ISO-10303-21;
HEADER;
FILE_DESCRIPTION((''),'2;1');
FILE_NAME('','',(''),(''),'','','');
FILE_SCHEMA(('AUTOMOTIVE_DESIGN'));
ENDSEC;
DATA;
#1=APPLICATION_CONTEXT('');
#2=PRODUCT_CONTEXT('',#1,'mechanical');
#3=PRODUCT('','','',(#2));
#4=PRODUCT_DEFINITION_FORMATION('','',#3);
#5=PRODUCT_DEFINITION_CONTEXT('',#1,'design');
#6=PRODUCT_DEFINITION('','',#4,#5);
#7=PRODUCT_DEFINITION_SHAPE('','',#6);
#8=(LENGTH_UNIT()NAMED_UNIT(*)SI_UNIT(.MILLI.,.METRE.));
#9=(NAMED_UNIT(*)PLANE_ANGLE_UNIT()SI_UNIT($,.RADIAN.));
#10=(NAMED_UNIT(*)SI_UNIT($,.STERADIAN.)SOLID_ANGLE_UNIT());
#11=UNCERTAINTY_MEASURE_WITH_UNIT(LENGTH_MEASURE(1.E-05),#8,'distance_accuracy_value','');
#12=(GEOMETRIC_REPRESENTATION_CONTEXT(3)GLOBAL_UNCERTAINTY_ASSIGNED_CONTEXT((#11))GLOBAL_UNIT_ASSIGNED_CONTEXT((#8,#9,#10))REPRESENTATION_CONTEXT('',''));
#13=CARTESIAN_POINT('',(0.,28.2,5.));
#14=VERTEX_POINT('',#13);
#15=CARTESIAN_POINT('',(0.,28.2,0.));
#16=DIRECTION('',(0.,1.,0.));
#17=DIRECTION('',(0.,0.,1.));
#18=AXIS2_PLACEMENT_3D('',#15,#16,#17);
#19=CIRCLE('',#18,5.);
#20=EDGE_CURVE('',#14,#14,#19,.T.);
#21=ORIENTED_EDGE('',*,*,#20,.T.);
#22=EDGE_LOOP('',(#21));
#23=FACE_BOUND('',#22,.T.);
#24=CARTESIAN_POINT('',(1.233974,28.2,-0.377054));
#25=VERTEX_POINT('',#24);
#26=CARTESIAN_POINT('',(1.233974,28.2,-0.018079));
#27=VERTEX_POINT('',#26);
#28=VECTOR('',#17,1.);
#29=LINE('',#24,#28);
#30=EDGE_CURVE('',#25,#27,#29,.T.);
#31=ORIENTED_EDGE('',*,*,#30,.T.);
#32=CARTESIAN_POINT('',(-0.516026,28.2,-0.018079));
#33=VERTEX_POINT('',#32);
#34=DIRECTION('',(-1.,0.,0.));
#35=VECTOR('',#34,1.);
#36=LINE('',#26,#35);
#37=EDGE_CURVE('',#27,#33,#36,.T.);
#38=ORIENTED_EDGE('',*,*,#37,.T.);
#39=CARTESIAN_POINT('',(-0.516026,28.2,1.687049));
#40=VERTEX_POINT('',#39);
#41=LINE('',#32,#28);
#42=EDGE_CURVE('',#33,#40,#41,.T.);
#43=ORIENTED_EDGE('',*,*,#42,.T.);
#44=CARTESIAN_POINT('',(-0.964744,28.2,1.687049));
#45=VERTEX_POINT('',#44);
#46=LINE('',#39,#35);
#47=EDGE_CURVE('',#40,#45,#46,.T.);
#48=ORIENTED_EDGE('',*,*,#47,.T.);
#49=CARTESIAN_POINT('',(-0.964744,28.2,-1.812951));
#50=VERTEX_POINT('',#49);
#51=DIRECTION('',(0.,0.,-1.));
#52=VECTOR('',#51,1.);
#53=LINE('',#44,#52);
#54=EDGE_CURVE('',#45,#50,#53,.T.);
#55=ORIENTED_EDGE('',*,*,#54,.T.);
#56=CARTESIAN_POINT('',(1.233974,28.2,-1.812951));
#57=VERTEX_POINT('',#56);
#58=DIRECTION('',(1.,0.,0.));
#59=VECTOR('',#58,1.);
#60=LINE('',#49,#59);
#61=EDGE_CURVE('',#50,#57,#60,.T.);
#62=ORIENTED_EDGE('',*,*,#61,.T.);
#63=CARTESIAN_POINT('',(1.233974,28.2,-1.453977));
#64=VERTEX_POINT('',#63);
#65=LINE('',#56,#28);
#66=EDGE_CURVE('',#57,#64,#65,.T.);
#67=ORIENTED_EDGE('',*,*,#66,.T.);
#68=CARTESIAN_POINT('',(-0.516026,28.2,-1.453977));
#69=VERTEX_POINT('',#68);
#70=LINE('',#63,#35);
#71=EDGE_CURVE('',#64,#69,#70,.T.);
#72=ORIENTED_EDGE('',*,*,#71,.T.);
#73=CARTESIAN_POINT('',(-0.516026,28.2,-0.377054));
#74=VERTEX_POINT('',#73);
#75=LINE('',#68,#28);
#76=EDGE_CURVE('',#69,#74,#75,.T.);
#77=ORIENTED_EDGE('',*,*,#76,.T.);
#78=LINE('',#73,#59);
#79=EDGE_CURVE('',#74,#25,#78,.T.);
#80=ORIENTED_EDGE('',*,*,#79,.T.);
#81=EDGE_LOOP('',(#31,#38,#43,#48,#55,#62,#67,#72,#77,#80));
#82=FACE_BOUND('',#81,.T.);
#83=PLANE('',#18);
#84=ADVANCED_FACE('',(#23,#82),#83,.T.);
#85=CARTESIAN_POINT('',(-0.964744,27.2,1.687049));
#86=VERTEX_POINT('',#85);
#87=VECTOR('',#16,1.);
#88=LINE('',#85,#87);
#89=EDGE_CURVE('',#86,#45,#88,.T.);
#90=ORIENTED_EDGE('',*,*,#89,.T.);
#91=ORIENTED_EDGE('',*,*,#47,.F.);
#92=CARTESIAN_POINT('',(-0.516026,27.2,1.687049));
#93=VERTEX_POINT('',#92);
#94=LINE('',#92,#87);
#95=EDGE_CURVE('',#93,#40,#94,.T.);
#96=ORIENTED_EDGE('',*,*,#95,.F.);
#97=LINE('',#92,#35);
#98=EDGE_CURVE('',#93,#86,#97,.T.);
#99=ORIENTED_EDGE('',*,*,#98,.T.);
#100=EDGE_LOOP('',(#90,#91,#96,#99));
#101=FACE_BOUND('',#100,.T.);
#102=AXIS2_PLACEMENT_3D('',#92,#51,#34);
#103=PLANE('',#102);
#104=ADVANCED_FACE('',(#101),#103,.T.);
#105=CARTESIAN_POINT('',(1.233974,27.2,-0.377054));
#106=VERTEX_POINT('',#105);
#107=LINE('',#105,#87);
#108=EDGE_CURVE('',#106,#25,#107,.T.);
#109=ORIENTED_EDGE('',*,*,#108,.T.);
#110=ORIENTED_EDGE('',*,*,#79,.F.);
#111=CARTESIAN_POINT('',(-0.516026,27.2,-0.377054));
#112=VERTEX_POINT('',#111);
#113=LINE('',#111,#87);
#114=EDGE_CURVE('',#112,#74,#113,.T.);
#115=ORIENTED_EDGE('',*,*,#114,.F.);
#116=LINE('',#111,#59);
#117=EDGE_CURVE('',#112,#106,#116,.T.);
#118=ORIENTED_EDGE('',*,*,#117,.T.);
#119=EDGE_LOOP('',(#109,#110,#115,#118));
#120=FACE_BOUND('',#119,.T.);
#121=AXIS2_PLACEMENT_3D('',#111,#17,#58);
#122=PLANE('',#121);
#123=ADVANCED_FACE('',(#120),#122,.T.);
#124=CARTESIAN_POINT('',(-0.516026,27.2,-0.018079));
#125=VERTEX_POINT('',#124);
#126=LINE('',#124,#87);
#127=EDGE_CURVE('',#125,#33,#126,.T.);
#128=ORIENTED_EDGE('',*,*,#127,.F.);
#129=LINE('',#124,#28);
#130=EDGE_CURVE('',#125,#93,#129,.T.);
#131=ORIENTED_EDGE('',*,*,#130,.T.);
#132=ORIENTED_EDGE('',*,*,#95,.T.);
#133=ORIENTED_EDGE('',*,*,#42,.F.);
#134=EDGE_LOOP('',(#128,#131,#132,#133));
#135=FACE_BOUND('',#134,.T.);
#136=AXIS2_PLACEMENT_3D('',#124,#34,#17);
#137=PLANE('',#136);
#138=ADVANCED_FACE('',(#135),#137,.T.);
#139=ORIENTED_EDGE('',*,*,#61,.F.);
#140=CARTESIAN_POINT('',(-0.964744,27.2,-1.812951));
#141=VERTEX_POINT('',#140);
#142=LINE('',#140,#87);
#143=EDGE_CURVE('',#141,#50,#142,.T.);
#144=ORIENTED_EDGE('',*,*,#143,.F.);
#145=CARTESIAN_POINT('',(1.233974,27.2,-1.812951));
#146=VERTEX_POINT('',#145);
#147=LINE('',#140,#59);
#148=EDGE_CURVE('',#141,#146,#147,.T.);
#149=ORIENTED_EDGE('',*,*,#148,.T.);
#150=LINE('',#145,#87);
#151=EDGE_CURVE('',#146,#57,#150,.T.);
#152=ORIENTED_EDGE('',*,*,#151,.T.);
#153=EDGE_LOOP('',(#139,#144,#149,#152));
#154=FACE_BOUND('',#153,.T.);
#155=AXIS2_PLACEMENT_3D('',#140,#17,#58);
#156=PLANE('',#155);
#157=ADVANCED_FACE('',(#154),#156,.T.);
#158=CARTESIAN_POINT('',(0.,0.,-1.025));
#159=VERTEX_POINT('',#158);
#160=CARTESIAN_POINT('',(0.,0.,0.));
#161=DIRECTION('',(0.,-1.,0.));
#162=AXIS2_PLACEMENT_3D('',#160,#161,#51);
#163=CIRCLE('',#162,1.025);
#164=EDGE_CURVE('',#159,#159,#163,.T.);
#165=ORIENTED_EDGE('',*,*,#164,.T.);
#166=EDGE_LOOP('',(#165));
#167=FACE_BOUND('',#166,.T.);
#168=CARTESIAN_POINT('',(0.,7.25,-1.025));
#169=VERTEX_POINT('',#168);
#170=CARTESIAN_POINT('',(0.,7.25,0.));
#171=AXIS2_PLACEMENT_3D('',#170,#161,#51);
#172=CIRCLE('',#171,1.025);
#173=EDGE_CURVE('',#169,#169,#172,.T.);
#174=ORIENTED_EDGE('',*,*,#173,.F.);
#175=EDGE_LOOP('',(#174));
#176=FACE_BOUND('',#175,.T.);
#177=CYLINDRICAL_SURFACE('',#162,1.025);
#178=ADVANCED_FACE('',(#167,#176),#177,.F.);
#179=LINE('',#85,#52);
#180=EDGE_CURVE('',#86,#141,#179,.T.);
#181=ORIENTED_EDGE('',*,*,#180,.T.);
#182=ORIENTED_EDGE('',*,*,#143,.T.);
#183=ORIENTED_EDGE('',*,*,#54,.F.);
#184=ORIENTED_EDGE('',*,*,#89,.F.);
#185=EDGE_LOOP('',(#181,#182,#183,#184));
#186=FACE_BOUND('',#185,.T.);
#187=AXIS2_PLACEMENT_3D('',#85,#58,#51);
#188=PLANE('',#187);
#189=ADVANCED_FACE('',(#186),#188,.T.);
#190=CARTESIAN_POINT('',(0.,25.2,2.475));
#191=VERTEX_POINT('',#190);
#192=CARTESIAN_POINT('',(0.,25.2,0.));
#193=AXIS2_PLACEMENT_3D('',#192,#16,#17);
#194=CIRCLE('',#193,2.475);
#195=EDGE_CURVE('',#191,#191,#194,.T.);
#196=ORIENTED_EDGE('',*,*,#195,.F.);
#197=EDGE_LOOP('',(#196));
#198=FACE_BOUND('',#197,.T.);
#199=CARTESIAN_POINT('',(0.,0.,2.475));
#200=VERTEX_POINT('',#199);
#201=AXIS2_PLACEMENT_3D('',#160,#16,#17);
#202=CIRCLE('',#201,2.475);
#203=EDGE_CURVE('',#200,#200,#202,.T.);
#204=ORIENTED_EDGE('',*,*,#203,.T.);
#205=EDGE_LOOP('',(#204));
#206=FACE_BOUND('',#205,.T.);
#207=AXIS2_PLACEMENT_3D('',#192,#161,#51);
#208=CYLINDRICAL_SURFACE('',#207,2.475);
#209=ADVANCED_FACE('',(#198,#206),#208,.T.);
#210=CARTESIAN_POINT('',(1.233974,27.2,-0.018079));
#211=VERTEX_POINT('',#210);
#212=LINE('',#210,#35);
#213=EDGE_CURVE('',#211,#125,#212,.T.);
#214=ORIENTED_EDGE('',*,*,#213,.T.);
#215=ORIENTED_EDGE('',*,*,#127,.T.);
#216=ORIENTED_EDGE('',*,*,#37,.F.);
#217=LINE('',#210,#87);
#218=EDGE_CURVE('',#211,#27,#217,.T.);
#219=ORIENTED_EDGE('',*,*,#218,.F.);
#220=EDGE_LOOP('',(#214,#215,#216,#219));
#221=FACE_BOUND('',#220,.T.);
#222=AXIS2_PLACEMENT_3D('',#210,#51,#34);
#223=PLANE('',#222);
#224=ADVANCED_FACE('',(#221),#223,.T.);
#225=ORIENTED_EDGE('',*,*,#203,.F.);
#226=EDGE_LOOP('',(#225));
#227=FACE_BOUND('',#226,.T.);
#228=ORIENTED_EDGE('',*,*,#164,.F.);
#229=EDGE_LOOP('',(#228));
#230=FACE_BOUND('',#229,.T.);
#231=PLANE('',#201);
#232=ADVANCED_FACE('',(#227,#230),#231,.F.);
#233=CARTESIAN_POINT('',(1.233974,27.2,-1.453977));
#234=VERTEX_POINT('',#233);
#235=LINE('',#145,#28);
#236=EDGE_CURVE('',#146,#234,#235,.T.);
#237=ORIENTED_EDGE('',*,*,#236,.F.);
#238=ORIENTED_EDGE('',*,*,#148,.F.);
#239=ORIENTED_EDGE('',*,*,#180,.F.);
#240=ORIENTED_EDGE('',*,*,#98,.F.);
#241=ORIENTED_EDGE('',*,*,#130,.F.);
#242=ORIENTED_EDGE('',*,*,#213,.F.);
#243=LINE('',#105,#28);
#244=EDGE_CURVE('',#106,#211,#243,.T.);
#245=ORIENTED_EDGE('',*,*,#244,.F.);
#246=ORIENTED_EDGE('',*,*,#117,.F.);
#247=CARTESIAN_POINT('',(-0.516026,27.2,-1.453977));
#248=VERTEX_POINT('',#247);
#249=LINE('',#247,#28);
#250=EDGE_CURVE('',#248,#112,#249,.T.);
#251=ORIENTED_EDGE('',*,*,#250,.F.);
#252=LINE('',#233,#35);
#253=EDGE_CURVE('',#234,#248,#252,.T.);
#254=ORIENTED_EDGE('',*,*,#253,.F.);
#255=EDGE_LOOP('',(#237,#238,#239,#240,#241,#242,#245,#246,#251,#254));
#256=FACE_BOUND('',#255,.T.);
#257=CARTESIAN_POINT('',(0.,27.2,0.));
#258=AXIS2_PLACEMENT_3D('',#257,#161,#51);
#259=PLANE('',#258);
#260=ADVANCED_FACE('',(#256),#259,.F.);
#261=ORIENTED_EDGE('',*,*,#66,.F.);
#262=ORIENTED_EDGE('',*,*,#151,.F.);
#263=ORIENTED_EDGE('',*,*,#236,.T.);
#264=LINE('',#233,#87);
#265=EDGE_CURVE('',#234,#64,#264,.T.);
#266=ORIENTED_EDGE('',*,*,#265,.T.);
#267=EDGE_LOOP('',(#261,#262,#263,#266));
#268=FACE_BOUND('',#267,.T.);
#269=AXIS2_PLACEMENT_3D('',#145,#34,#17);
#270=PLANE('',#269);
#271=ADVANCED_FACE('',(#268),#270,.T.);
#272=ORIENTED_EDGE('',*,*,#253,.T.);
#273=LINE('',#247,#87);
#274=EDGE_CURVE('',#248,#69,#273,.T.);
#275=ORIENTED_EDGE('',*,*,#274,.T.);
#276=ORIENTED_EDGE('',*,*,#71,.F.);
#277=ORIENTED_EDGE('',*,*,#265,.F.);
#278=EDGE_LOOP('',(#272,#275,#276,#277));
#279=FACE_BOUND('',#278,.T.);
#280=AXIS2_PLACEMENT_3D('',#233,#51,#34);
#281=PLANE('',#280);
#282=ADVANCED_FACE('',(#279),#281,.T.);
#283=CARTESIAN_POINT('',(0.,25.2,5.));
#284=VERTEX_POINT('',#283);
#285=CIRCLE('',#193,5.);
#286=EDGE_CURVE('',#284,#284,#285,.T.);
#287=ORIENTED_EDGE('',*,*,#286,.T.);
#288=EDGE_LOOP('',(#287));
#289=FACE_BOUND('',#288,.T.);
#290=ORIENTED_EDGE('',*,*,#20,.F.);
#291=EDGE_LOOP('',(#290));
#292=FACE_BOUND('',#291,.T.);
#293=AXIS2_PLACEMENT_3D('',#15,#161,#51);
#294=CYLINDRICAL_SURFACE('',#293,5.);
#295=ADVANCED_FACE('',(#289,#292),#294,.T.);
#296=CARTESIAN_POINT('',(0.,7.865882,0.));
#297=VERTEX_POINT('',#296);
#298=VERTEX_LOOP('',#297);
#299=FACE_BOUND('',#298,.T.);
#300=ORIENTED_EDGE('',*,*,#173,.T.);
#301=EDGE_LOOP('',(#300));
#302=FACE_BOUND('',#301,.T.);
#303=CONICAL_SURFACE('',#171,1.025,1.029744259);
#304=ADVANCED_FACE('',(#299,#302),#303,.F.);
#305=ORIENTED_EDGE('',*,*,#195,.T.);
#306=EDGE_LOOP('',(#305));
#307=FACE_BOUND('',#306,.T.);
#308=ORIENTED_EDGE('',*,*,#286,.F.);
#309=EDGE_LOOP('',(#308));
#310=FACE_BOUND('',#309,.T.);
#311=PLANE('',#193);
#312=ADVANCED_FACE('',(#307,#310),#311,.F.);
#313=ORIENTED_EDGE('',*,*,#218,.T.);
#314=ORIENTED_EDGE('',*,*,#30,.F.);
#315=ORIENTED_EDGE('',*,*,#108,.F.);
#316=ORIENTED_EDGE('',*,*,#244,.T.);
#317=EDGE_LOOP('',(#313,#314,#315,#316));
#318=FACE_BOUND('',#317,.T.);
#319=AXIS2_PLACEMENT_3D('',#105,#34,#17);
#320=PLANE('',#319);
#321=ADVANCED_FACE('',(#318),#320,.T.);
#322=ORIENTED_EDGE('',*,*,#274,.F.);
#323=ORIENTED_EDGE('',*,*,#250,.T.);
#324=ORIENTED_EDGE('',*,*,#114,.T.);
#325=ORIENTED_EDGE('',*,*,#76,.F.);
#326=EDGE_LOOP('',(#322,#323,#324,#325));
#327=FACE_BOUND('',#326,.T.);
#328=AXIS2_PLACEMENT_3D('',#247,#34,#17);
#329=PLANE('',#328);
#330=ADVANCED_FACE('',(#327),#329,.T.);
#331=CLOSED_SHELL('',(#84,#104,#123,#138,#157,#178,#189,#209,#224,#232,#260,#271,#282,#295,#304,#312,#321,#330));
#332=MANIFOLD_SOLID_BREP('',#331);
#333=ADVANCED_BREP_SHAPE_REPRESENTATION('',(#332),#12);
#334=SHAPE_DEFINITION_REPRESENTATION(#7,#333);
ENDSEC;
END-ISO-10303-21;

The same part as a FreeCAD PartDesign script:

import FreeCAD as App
import Part
import Sketcher
Q = App.Units.Quantity

doc = App.newDocument("Part")
params = doc.addObject("Spreadsheet::Sheet", "Params")
for row, (alias, value) in enumerate([
    ("sketch1_diameter", "4.95 mm"),
    ("pad1_length", "25.2 mm"),
    ("sketch2_diameter", "10 mm"),
    ("pad2_length", "3 mm"),
    ("sketch3_diameter", "2.05 mm"),
    ("hole_diameter", "2.05 mm"),
    ("hole_depth", "7.25 mm"),
    ("sketch4_height", "3.5 mm"),
    ("sketch4_width", "1.75 mm"),
    ("pocket1_length", "1 mm"),
], start=1):
    params.set(f"A{row}", alias)
    params.set(f"B{row}", "=" + value)
    params.setAlias(f"B{row}", alias)

body = doc.addObject("PartDesign::Body", "Body")

# Sketch on XZ plane
sketch1 = body.newObject("Sketcher::SketchObject", "Sketch")
sketch1.AttachmentSupport = (doc.getObject("XZ_Plane"), [""])
sketch1.MapMode = "FlatFace"
sketch1.addGeometry(Part.Circle(App.Vector(0, 0, 0), App.Vector(0, 0, 1), 2.5), False)
sketch1.addConstraint(Sketcher.Constraint("Coincident", 0, 3, -1, 1))
sketch1.addConstraint(Sketcher.Constraint("Diameter", 0, Q("4.95 mm")))
sketch1.setExpression("Constraints[1]", "Params.sketch1_diameter")
pad1 = body.newObject("PartDesign::Pad", "Pad")
pad1.Profile = sketch1
pad1.setExpression("Length", "Params.pad1_length")
pad1.Reversed = True

# Sketch on XZ plane
sketch2 = body.newObject("Sketcher::SketchObject", "Sketch001")
sketch2.AttachmentSupport = (doc.getObject("XZ_Plane"), [""])
sketch2.MapMode = "FlatFace"
sketch2.AttachmentOffset = App.Placement(App.Vector(0, 0, -25.2), App.Rotation())
sketch2.addGeometry(Part.Circle(App.Vector(0, 0, 0), App.Vector(0, 0, 1), 5), False)
sketch2.addConstraint(Sketcher.Constraint("Coincident", 0, 3, -1, 1))
sketch2.addConstraint(Sketcher.Constraint("Diameter", 0, Q("10 mm")))
sketch2.setExpression("Constraints[1]", "Params.sketch2_diameter")
pad2 = body.newObject("PartDesign::Pad", "Pad001")
pad2.Profile = sketch2
pad2.setExpression("Length", "Params.pad2_length")
pad2.Reversed = True

# Sketch on XZ plane
sketch3 = body.newObject("Sketcher::SketchObject", "Sketch002")
sketch3.AttachmentSupport = (doc.getObject("XZ_Plane"), [""])
sketch3.MapMode = "FlatFace"
sketch3.addGeometry(Part.Circle(App.Vector(0, 0, 0), App.Vector(0, 0, 1), 1), False)
sketch3.addConstraint(Sketcher.Constraint("Coincident", 0, 3, -1, 1))
sketch3.addConstraint(Sketcher.Constraint("Diameter", 0, Q("2.05 mm")))
sketch3.setExpression("Constraints[1]", "Params.sketch3_diameter")
doc.recompute()
hole = body.newObject("PartDesign::Hole", "Hole")
hole.Profile = sketch3
hole.ThreadType = "None"
hole.setExpression("Diameter", "Params.hole_diameter")
hole.DepthType = "Dimension"
hole.setExpression("Depth", "Params.hole_depth")
hole.DrillPoint = "Angled"
hole.DrillPointAngle = 118

# Sketch on XZ plane
sketch4 = body.newObject("Sketcher::SketchObject", "Sketch003")
sketch4.AttachmentSupport = (doc.getObject("XZ_Plane"), [""])
sketch4.MapMode = "FlatFace"
sketch4.AttachmentOffset = App.Placement(App.Vector(0, 0, -28.2), App.Rotation())
sketch4.addGeometry(Part.LineSegment(App.Vector(1.23, -1.81, 0), App.Vector(-0.96, -1.81, 0)), False)
sketch4.addGeometry(Part.LineSegment(App.Vector(-0.96, -1.81, 0), App.Vector(-0.96, 1.69, 0)), False)
sketch4.addGeometry(Part.LineSegment(App.Vector(-0.96, 1.69, 0), App.Vector(-0.52, 1.69, 0)), False)
sketch4.addGeometry(Part.LineSegment(App.Vector(-0.52, 1.69, 0), App.Vector(-0.52, -0.02, 0)), False)
sketch4.addGeometry(Part.LineSegment(App.Vector(-0.52, -0.02, 0), App.Vector(1.23, -0.02, 0)), False)
sketch4.addGeometry(Part.LineSegment(App.Vector(1.23, -0.02, 0), App.Vector(1.23, -0.38, 0)), False)
sketch4.addGeometry(Part.LineSegment(App.Vector(1.23, -0.38, 0), App.Vector(-0.52, -0.38, 0)), False)
sketch4.addGeometry(Part.LineSegment(App.Vector(-0.52, -0.38, 0), App.Vector(-0.52, -1.45, 0)), False)
sketch4.addGeometry(Part.LineSegment(App.Vector(-0.52, -1.45, 0), App.Vector(1.23, -1.45, 0)), False)
sketch4.addGeometry(Part.LineSegment(App.Vector(1.23, -1.45, 0), App.Vector(1.23, -1.81, 0)), False)
sketch4.addConstraint(Sketcher.Constraint("Coincident", 0, 2, 1, 1))
sketch4.addConstraint(Sketcher.Constraint("Coincident", 1, 2, 2, 1))
sketch4.addConstraint(Sketcher.Constraint("Coincident", 2, 2, 3, 1))
sketch4.addConstraint(Sketcher.Constraint("Coincident", 3, 2, 4, 1))
sketch4.addConstraint(Sketcher.Constraint("Coincident", 4, 2, 5, 1))
sketch4.addConstraint(Sketcher.Constraint("Coincident", 5, 2, 6, 1))
sketch4.addConstraint(Sketcher.Constraint("Coincident", 6, 2, 7, 1))
sketch4.addConstraint(Sketcher.Constraint("Coincident", 7, 2, 8, 1))
sketch4.addConstraint(Sketcher.Constraint("Coincident", 8, 2, 9, 1))
sketch4.addConstraint(Sketcher.Constraint("Coincident", 9, 2, 0, 1))
sketch4.addConstraint(Sketcher.Constraint("Horizontal", 0))
sketch4.addConstraint(Sketcher.Constraint("Vertical", 1))
sketch4.addConstraint(Sketcher.Constraint("Horizontal", 2))
sketch4.addConstraint(Sketcher.Constraint("Vertical", 3))
sketch4.addConstraint(Sketcher.Constraint("Horizontal", 4))
sketch4.addConstraint(Sketcher.Constraint("Vertical", 5))
sketch4.addConstraint(Sketcher.Constraint("Horizontal", 6))
sketch4.addConstraint(Sketcher.Constraint("Vertical", 7))
sketch4.addConstraint(Sketcher.Constraint("Horizontal", 8))
sketch4.addConstraint(Sketcher.Constraint("Vertical", 9))
sketch4.addConstraint(Sketcher.Constraint("Vertical", 3, 2, 6, 2))
sketch4.addConstraint(Sketcher.Constraint("Vertical", 5, 2, 8, 2))
sketch4.addConstraint(Sketcher.Constraint("Equal", 5, 9))
sketch4.addConstraint(Sketcher.Constraint("DistanceY", 1, 1, 1, 2, Q("3.5 mm")))
sketch4.addConstraint(Sketcher.Constraint("DistanceX", 4, 1, 4, 2, Q("1.75 mm")))
sketch4.addConstraint(Sketcher.Constraint("DistanceY", 3, 2, 3, 1, Q("1.705128 mm")))
sketch4.addConstraint(Sketcher.Constraint("DistanceX", 0, 2, 0, 1, Q("2.198718 mm")))
sketch4.addConstraint(Sketcher.Constraint("DistanceY", 5, 2, 5, 1, Q("0.358974 mm")))
sketch4.addConstraint(Sketcher.Constraint("DistanceY", 0, 2, -1, 1, Q("1.812951 mm")))
sketch4.addConstraint(Sketcher.Constraint("DistanceX", 0, 2, -1, 1, Q("0.964744 mm")))
sketch4.setExpression("Constraints[23]", "Params.sketch4_height")
sketch4.setExpression("Constraints[24]", "Params.sketch4_width")
pocket1 = body.newObject("PartDesign::Pocket", "Pocket")
pocket1.Profile = sketch4
pocket1.setExpression("Length", "Params.pocket1_length")
pocket1.Reversed = True

doc.recompute()
